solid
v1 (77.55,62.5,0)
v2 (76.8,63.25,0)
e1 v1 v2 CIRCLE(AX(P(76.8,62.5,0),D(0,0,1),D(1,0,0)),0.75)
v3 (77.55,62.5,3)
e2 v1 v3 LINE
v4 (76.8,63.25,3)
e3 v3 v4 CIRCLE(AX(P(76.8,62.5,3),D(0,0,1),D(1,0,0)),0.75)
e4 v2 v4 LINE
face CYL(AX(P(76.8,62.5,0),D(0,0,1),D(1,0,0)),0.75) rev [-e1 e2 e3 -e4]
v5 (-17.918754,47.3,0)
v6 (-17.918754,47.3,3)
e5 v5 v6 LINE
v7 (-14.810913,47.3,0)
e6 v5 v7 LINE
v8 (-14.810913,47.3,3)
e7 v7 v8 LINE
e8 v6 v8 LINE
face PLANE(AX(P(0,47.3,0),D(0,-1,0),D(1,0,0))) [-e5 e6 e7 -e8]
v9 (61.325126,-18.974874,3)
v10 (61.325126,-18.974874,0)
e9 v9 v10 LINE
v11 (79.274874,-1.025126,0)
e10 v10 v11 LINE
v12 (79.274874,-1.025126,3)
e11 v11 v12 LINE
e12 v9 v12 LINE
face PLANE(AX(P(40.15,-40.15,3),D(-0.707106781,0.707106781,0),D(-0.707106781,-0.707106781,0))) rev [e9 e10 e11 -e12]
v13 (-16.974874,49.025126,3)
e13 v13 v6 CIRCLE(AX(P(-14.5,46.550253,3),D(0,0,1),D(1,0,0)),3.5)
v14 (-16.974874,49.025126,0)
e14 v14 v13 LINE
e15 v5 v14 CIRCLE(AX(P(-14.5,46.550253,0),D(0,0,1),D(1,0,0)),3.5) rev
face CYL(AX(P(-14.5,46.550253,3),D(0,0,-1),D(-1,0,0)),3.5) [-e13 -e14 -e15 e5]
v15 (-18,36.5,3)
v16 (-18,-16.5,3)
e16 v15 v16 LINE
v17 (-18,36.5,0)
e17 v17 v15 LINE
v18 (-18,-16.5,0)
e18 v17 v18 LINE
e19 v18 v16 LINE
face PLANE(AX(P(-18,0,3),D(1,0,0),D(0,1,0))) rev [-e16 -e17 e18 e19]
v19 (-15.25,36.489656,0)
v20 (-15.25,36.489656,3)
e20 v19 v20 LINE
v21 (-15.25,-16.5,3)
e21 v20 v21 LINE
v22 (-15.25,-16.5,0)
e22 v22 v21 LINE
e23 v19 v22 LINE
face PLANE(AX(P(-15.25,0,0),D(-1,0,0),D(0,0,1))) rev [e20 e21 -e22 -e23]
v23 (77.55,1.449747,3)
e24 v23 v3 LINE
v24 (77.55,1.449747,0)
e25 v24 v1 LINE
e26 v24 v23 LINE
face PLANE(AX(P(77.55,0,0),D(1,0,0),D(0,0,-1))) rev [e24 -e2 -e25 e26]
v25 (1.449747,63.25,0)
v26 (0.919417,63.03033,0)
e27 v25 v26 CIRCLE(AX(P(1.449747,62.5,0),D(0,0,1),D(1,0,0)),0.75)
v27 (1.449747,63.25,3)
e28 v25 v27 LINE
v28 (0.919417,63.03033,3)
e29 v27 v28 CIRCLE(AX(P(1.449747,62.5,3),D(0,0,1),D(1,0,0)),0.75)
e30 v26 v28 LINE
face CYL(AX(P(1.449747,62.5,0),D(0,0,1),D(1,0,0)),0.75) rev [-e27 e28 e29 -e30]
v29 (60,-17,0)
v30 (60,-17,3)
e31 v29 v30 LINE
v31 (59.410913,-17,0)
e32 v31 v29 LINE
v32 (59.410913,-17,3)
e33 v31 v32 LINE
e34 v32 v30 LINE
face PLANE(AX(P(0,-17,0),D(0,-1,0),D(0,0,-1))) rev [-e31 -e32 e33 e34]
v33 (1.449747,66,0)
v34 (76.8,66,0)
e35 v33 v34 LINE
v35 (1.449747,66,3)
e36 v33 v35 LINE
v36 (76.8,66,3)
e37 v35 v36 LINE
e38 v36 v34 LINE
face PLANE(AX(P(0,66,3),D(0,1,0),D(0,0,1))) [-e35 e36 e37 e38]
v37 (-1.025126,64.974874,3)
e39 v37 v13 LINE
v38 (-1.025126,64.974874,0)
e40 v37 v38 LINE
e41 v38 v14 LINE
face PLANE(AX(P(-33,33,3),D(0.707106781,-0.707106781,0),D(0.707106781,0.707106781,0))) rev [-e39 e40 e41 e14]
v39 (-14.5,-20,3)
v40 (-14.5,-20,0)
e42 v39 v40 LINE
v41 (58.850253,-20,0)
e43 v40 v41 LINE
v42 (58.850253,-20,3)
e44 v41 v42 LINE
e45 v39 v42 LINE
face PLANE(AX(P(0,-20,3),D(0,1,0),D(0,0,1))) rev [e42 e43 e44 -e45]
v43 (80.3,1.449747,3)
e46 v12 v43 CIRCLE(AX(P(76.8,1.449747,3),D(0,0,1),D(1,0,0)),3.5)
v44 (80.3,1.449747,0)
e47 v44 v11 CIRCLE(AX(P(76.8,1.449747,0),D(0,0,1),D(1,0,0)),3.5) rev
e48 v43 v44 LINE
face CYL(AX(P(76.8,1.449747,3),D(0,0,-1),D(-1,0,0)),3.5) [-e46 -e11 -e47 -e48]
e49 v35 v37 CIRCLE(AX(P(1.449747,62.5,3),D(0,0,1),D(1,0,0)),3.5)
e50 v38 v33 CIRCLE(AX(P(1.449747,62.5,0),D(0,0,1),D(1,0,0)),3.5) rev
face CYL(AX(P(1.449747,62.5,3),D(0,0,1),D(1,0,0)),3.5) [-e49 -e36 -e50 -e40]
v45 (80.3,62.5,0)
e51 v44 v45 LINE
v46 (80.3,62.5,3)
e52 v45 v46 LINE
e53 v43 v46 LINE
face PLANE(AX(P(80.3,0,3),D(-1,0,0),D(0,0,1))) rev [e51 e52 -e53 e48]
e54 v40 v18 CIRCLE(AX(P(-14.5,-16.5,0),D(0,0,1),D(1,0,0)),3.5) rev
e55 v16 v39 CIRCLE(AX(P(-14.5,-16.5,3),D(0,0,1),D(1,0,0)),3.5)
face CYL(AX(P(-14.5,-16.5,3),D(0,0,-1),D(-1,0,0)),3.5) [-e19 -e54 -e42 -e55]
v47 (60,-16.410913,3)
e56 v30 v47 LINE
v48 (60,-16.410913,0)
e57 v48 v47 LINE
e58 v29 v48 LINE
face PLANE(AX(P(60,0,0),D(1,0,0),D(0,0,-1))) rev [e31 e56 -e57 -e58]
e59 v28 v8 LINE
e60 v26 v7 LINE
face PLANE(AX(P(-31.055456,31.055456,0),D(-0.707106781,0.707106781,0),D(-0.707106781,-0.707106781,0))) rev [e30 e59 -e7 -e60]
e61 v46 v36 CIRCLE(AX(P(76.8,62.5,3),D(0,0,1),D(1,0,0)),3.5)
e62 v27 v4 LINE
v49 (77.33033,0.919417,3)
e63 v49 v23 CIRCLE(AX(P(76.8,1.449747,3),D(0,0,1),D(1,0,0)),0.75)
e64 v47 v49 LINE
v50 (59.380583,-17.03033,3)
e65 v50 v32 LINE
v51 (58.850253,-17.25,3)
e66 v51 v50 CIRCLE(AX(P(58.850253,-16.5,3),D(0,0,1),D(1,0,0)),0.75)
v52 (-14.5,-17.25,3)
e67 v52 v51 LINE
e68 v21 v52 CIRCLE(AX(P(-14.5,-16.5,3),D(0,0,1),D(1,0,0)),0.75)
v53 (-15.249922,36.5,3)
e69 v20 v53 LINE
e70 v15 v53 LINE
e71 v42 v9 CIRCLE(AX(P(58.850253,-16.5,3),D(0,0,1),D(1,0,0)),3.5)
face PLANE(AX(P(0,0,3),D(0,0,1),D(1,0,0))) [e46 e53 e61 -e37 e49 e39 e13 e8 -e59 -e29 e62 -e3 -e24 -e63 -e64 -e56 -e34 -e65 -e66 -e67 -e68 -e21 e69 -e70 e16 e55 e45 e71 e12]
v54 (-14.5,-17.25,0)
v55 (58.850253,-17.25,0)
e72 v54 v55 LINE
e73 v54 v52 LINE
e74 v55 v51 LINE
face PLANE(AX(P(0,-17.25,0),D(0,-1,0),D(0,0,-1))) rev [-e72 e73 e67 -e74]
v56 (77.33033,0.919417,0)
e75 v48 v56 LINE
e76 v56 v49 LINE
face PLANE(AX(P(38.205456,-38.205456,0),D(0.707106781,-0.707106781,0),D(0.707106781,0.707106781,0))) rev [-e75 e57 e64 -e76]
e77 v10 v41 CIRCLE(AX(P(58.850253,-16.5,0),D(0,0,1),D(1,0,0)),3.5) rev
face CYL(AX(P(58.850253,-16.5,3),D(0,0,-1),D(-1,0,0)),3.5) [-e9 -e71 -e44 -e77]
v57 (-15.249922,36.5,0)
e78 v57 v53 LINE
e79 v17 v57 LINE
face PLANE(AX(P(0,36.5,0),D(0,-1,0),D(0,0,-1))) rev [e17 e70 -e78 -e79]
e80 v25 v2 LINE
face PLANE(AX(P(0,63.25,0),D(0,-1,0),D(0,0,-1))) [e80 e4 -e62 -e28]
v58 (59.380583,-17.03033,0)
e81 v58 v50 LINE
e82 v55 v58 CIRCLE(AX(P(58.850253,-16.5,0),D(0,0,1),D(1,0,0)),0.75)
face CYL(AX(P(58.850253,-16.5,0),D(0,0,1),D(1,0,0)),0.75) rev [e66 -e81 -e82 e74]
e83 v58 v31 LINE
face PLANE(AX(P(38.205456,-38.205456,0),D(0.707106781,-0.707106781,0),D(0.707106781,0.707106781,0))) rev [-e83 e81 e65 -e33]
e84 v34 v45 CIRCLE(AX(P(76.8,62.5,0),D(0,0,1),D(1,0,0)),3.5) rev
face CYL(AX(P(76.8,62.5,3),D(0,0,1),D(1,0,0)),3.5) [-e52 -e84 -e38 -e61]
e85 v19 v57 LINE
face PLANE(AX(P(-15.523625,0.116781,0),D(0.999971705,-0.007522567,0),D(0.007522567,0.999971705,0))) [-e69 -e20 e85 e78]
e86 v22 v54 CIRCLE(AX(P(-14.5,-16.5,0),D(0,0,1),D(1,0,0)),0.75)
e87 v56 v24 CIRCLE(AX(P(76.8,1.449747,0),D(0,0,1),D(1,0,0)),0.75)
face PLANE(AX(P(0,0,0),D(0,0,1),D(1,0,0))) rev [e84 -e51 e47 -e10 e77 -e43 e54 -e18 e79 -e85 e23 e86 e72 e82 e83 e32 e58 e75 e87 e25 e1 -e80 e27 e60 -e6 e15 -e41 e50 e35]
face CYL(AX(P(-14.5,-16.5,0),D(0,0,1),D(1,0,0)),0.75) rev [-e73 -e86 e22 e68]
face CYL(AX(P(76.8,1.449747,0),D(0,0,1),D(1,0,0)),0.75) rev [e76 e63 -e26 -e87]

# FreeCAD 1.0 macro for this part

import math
import FreeCAD as App
import Part
import Sketcher

V = App.Vector
Q = App.Units.Quantity


def edges_at(feature, points):
    """Names of the edges that pass closest to the given points."""
    edges = feature.Shape.Edges
    near = lambda p: min(range(len(edges)), key=lambda i: edges[i].distToShape(Part.Vertex(*p))[0])
    return sorted({f"Edge{near(p) + 1}" for p in points})

doc = App.newDocument("Part")
body = doc.addObject("PartDesign::Body", "Body")

# Sketch on XY plane
sketch1 = body.newObject("Sketcher::SketchObject", "Sketch")
sketch1.AttachmentSupport = (doc.getObject("XY_Plane"), [""])
sketch1.MapMode = "FlatFace"
sketch1.addGeometry([
    Part.LineSegment(V(-18, -20, 0), V(60, -20, 0)),  # 0
    Part.LineSegment(V(60, -20, 0), V(80, 0, 0)),  # 1
    Part.LineSegment(V(80, 0, 0), V(80, 66, 0)),  # 2
    Part.LineSegment(V(80, 66, 0), V(0, 66, 0)),  # 3
    Part.LineSegment(V(0, 66, 0), V(-18, 48, 0)),  # 4
    Part.LineSegment(V(-18, 48, 0), V(-18, -20, 0)),  # 5
], False)
sketch1.addConstraint([
    Sketcher.Constraint("Coincident", 0, 2, 1, 1),
    Sketcher.Constraint("Coincident", 1, 2, 2, 1),
    Sketcher.Constraint("Coincident", 2, 2, 3, 1),
    Sketcher.Constraint("Coincident", 3, 2, 4, 1),
    Sketcher.Constraint("Coincident", 4, 2, 5, 1),
    Sketcher.Constraint("Coincident", 5, 2, 0, 1),
    Sketcher.Constraint("Horizontal", 0),
    Sketcher.Constraint("Vertical", 2),
    Sketcher.Constraint("Horizontal", 3),
    Sketcher.Constraint("Vertical", 5),
    Sketcher.Constraint("PointOnObject", 1, 2, -1),
    Sketcher.Constraint("PointOnObject", 3, 2, -2),
    Sketcher.Constraint("Parallel", 1, 4),
    Sketcher.Constraint("DistanceY", 2, 1, 2, 2, Q("66 mm")),
    Sketcher.Constraint("DistanceY", 5, 2, 5, 1, Q("68 mm")),
    Sketcher.Constraint("Angle", 1, Q("45 deg")),
    Sketcher.Constraint("DistanceX", 0, 1, 0, 2, Q("78.3 mm")),
    Sketcher.Constraint("DistanceY", 0, 2, -1, 1, Q("20 mm")),
])
pad1 = body.newObject("PartDesign::Pad", "Pad")
pad1.Profile = sketch1
pad1.Length = 3
doc.recompute()

fillet = body.newObject("PartDesign::Fillet", "Fillet")
fillet.Base = (pad1, edges_at(pad1, [
    (60.3, -20, 1.5),
    (-18, -20, 1.5),
    (-18, 48, 1.5),
    (0, 66, 1.5),
    (80.3, 66, 1.5),
    (80.3, 0, 1.5),
]))
fillet.Radius = 3.5

# Sketch on XY plane
sketch2 = body.newObject("Sketcher::SketchObject", "Sketch001")
sketch2.AttachmentSupport = (doc.getObject("XY_Plane"), [""])
sketch2.MapMode = "FlatFace"
sketch2.AttachmentOffset = App.Placement(V(0, 0, 3), App.Rotation())
sketch2.addGeometry([
    Part.LineSegment(V(3, 56, 0), V(3, 10, 0)),
    Part.LineSegment(V(3, 10, 0), V(75, 10, 0)),
    Part.LineSegment(V(75, 10, 0), V(75, 56, 0)),
    Part.LineSegment(V(75, 56, 0), V(3, 56, 0)),
], False)
sketch2.addConstraint([
    Sketcher.Constraint("Coincident", 0, 2, 1, 1),
    Sketcher.Constraint("Coincident", 1, 2, 2, 1),
    Sketcher.Constraint("Coincident", 2, 2, 3, 1),
    Sketcher.Constraint("Coincident", 3, 2, 0, 1),
    Sketcher.Constraint("Vertical", 0),
    Sketcher.Constraint("Horizontal", 1),
    Sketcher.Constraint("Vertical", 2),
    Sketcher.Constraint("Horizontal", 3),
    Sketcher.Constraint("DistanceY", 0, 2, 0, 1, Q("45 mm")),
    Sketcher.Constraint("DistanceX", 1, 1, 1, 2, Q("72.4 mm")),
    Sketcher.Constraint("DistanceX", -1, 1, 0, 2, Q("3 mm")),
    Sketcher.Constraint("DistanceY", -1, 1, 0, 2, Q("10.5 mm")),
])
pocket1 = body.newObject("PartDesign::Pocket", "Pocket")
pocket1.Profile = sketch2
pocket1.Type = "ThroughAll"

# Sketch on XY plane
sketch3 = body.newObject("Sketcher::SketchObject", "Sketch002")
sketch3.AttachmentSupport = (doc.getObject("XY_Plane"), [""])
sketch3.MapMode = "FlatFace"
sketch3.AttachmentOffset = App.Placement(V(0, 0, 3), App.Rotation())
sketch3.addGeometry([
    Part.LineSegment(V(-3, 47.3, 0), V(-17.9, 47.3, 0)),  # 0
    Part.ArcOfCircle(Part.Circle(V(-14.5, 46.6, 0), V(0, 0, 1), 3.5), math.radians(167.63), math.radians(180)),  # 1
    Part.LineSegment(V(-18, 46.6, 0), V(-18, 36.5, 0)),  # 2
    Part.LineSegment(V(-18, 36.5, 0), V(-3, 36.5, 0)),  # 3
    Part.LineSegment(V(-3, 36.5, 0), V(-3, 47.3, 0)),  # 4
    Part.LineSegment(V(-15, 34.5, 0), V(-15, 4.5, 0)),  # 5
    Part.LineSegment(V(-15, 4.5, 0), V(0, 4.5, 0)),  # 6
    Part.LineSegment(V(0, 4.5, 0), V(0, 34.5, 0)),  # 7
    Part.LineSegment(V(0, 34.5, 0), V(-15, 34.5, 0)),  # 8
    Part.LineSegment(V(27, 1, 0), V(27, -17, 0)),  # 9
    Part.LineSegment(V(27, -17, 0), V(60, -17, 0)),  # 10
    Part.LineSegment(V(60, -17, 0), V(60, 1, 0)),  # 11
    Part.LineSegment(V(60, 1, 0), V(27, 1, 0)),  # 12
    Part.LineSegment(V(-15, 1.5, 0), V(-15, -17, 0)),  # 13
    Part.LineSegment(V(-15, -17, 0), V(24, -17, 0)),  # 14
    Part.LineSegment(V(24, -17, 0), V(24, 1.5, 0)),  # 15
    Part.LineSegment(V(24, 1.5, 0), V(-15, 1.5, 0)),  # 16
    Part.LineSegment(V(67.2, -0.3, 0), V(63, -4.6, 0)),  # 17
    Part.LineSegment(V(63, -4.6, 0), V(67.2, -8.8, 0)),  # 18
    Part.LineSegment(V(67.2, -8.8, 0), V(71.5, -4.6, 0)),  # 19
    Part.LineSegment(V(71.5, -4.6, 0), V(67.2, -0.3, 0)),  # 20
], False)
sketch3.addConstraint([
    Sketcher.Constraint("Coincident", 0, 2, 1, 1),
    Sketcher.Constraint("Tangent", 1, 2, 2, 1),
    Sketcher.Constraint("Coincident", 2, 2, 3, 1),
    Sketcher.Constraint("Coincident", 3, 2, 4, 1),
    Sketcher.Constraint("Coincident", 4, 2, 0, 1),
    Sketcher.Constraint("Coincident", 5, 2, 6, 1),
    Sketcher.Constraint("Coincident", 6, 2, 7, 1),
    Sketcher.Constraint("Coincident", 7, 2, 8, 1),
    Sketcher.Constraint("Coincident", 8, 2, 5, 1),
    Sketcher.Constraint("Coincident", 9, 2, 10, 1),
    Sketcher.Constraint("Coincident", 10, 2, 11, 1),
    Sketcher.Constraint("Coincident", 11, 2, 12, 1),
    Sketcher.Constraint("Coincident", 12, 2, 9, 1),
    Sketcher.Constraint("Coincident", 13, 2, 14, 1),
    Sketcher.Constraint("Coincident", 14, 2, 15, 1),
    Sketcher.Constraint("Coincident", 15, 2, 16, 1),
    Sketcher.Constraint("Coincident", 16, 2, 13, 1),
    Sketcher.Constraint("Coincident", 17, 2, 18, 1),
    Sketcher.Constraint("Coincident", 18, 2, 19, 1),
    Sketcher.Constraint("Coincident", 19, 2, 20, 1),
    Sketcher.Constraint("Coincident", 20, 2, 17, 1),
    Sketcher.Constraint("Horizontal", 0),
    Sketcher.Constraint("Vertical", 2),
    Sketcher.Constraint("Horizontal", 3),
    Sketcher.Constraint("Vertical", 4),
    Sketcher.Constraint("Vertical", 5),
    Sketcher.Constraint("Horizontal", 6),
    Sketcher.Constraint("Vertical", 7),
    Sketcher.Constraint("Horizontal", 8),
    Sketcher.Constraint("Vertical", 9),
    Sketcher.Constraint("Horizontal", 10),
    Sketcher.Constraint("Vertical", 11),
    Sketcher.Constraint("Horizontal", 12),
    Sketcher.Constraint("Vertical", 13),
    Sketcher.Constraint("Horizontal", 14),
    Sketcher.Constraint("Vertical", 15),
    Sketcher.Constraint("Horizontal", 16),
    Sketcher.Constraint("PointOnObject", 6, 2, -2),
    Sketcher.Constraint("Perpendicular", 17, 18),
    Sketcher.Constraint("Perpendicular", 18, 19),
    Sketcher.Constraint("Perpendicular", 19, 20),
    Sketcher.Constraint("Horizontal", 10, 2, 13, 2),
    Sketcher.Constraint("Horizontal", 17, 2, 19, 2),
    Sketcher.Constraint("Vertical", 8, 2, 13, 2),
    Sketcher.Constraint("Vertical", 18, 2, 20, 2),
    Sketcher.Constraint("Equal", 3, 6),
    Sketcher.Constraint("Radius", 1, Q("3.5 mm")),
    Sketcher.Constraint("DistanceX", 3, 1, 3, 2, Q("15 mm")),
    Sketcher.Constraint("DistanceX", 10, 1, 10, 2, Q("33 mm")),
    Sketcher.Constraint("DistanceX", 14, 1, 14, 2, Q("39 mm")),
    Sketcher.Constraint("DistanceY", 5, 2, 5, 1, Q("30 mm")),
    Sketcher.Constraint("DistanceY", 9, 2, 9, 1, Q("18 mm")),
    Sketcher.Constraint("Distance", 17, Q("6 mm")),
    Sketcher.Constraint("DistanceY", 4, 1, 4, 2, Q("10.8 mm")),
    Sketcher.Constraint("DistanceY", 13, 2, 13, 1, Q("18.5 mm")),
    Sketcher.Constraint("DistanceX", 1, 2, -1, 1, Q("18 mm")),
    Sketcher.Constraint("DistanceX", -1, 1, 9, 2, Q("27 mm")),
    Sketcher.Constraint("DistanceY", 9, 2, -1, 1, Q("17 mm")),
    Sketcher.Constraint("DistanceX", -1, 1, 17, 2, Q("63 mm")),
    Sketcher.Constraint("DistanceY", 5, 2, 2, 2, Q("32 mm")),
    Sketcher.Constraint("DistanceY", 15, 2, 6, 2, Q("3 mm")),
    Sketcher.Constraint("DistanceX", 0, 2, 0, 1, Q("14.918754 mm")),
    Sketcher.Constraint("DistanceY", 18, 2, -1, 1, Q("8.814719 mm")),
])
pocket2 = body.newObject("PartDesign::Pocket", "Pocket001")
pocket2.Profile = sketch3
pocket2.Type = "ThroughAll"

# Sketch on XY plane
sketch4 = body.newObject("Sketcher::SketchObject", "Sketch003")
sketch4.AttachmentSupport = (doc.getObject("XY_Plane"), [""])
sketch4.MapMode = "FlatFace"
sketch4.AttachmentOffset = App.Placement(V(0, 0, 3), App.Rotation())
sketch4.addGeometry([
    Part.LineSegment(V(0.919, 63.03, 0), V(-14.811, 47.3, 0)),  # 0
    Part.LineSegment(V(-14.811, 47.3, 0), V(-3, 47.3, 0)),  # 1
    Part.LineSegment(V(-3, 47.3, 0), V(-3, 36.5, 0)),  # 2
    Part.LineSegment(V(-3, 36.5, 0), V(-15.25, 36.5, 0)),  # 3
    Part.LineSegment(V(-15.25, 36.5, 0), V(-15.25, 36.49, 0)),  # 4
    Part.LineSegment(V(-15.25, 36.49, 0), V(-15.25, -16.5, 0)),  # 5
    Part.ArcOfCircle(Part.Circle(V(-14.5, -16.5, 0), V(0, 0, 1), 0.75), math.radians(180), math.radians(270)),  # 6
    Part.LineSegment(V(-14.5, -17.25, 0), V(58.85, -17.25, 0)),  # 7
    Part.ArcOfCircle(Part.Circle(V(58.85, -16.5, 0), V(0, 0, 1), 0.75), math.radians(-90), math.radians(-45)),  # 8
    Part.LineSegment(V(59.381, -17.03, 0), V(59.411, -17, 0)),  # 9
    Part.LineSegment(V(59.411, -17, 0), V(27, -17, 0)),  # 10
    Part.LineSegment(V(27, -17, 0), V(27, 1, 0)),  # 11
    Part.LineSegment(V(27, 1, 0), V(60, 1, 0)),  # 12
    Part.LineSegment(V(60, 1, 0), V(60, -16.411, 0)),  # 13
    Part.LineSegment(V(60, -16.411, 0), V(77.33, 0.919, 0)),  # 14
    Part.ArcOfCircle(Part.Circle(V(76.8, 1.45, 0), V(0, 0, 1), 0.75), math.radians(-45), math.radians(0)),  # 15
    Part.LineSegment(V(77.55, 1.45, 0), V(77.55, 62.5, 0)),  # 16
    Part.ArcOfCircle(Part.Circle(V(76.8, 62.5, 0), V(0, 0, 1), 0.75), math.radians(0), math.radians(90)),  # 17
    Part.LineSegment(V(76.8, 63.25, 0), V(1.45, 63.25, 0)),  # 18
    Part.ArcOfCircle(Part.Circle(V(1.45, 62.5, 0), V(0, 0, 1), 0.75), math.radians(90), math.radians(135)),  # 19
    Part.LineSegment(V(24, -17, 0), V(-15, -17, 0)),  # 20
    Part.LineSegment(V(-15, -17, 0), V(-15, 1.5, 0)),  # 21
    Part.LineSegment(V(-15, 1.5, 0), V(24, 1.5, 0)),  # 22
    Part.LineSegment(V(24, 1.5, 0), V(24, -17, 0)),  # 23
    Part.LineSegment(V(71.485, -4.572, 0), V(67.243, -8.815, 0)),  # 24
    Part.LineSegment(V(67.243, -8.815, 0), V(63, -4.572, 0)),  # 25
    Part.LineSegment(V(63, -4.572, 0), V(67.243, -0.329, 0)),  # 26
    Part.LineSegment(V(67.243, -0.329, 0), V(71.485, -4.572, 0)),  # 27
    Part.LineSegment(V(0, 4.5, 0), V(-15, 4.5, 0)),  # 28
    Part.LineSegment(V(-15, 4.5, 0), V(-15, 34.5, 0)),  # 29
    Part.LineSegment(V(-15, 34.5, 0), V(0, 34.5, 0)),  # 30
    Part.LineSegment(V(0, 34.5, 0), V(0, 4.5, 0)),  # 31
    Part.LineSegment(V(75.4, 10.5, 0), V(3, 10.5, 0)),  # 32
    Part.LineSegment(V(3, 10.5, 0), V(3, 55.5, 0)),  # 33
    Part.LineSegment(V(3, 55.5, 0), V(75.4, 55.5, 0)),  # 34
    Part.LineSegment(V(75.4, 55.5, 0), V(75.4, 10.5, 0)),  # 35
], False)
sketch4.addConstraint([
    Sketcher.Constraint("Coincident", 0, 2, 1, 1),
    Sketcher.Constraint("Coincident", 1, 2, 2, 1),
    Sketcher.Constraint("Coincident", 2, 2, 3, 1),
    Sketcher.Constraint("Coincident", 3, 2, 4, 1),
    Sketcher.Constraint("Coincident", 4, 2, 5, 1),
    Sketcher.Constraint("Tangent", 5, 2, 6, 1),
    Sketcher.Constraint("Tangent", 6, 2, 7, 1),
    Sketcher.Constraint("Tangent", 7, 2, 8, 1),
    Sketcher.Constraint("Tangent", 8, 2, 9, 1),
    Sketcher.Constraint("Coincident", 9, 2, 10, 1),
    Sketcher.Constraint("Coincident", 10, 2, 11, 1),
    Sketcher.Constraint("Coincident", 11, 2, 12, 1),
    Sketcher.Constraint("Coincident", 12, 2, 13, 1),
    Sketcher.Constraint("Coincident", 13, 2, 14, 1),
    Sketcher.Constraint("Tangent", 14, 2, 15, 1),
    Sketcher.Constraint("Tangent", 15, 2, 16, 1),
    Sketcher.Constraint("Tangent", 16, 2, 17, 1),
    Sketcher.Constraint("Tangent", 17, 2, 18, 1),
    Sketcher.Constraint("Tangent", 18, 2, 19, 1),
    Sketcher.Constraint("Tangent", 19, 2, 0, 1),
    Sketcher.Constraint("Coincident", 20, 2, 21, 1),
    Sketcher.Constraint("Coincident", 21, 2, 22, 1),
    Sketcher.Constraint("Coincident", 22, 2, 23, 1),
    Sketcher.Constraint("Coincident", 23, 2, 20, 1),
    Sketcher.Constraint("Coincident", 24, 2, 25, 1),
    Sketcher.Constraint("Coincident", 25, 2, 26, 1),
    Sketcher.Constraint("Coincident", 26, 2, 27, 1),
    Sketcher.Constraint("Coincident", 27, 2, 24, 1),
    Sketcher.Constraint("Coincident", 28, 2, 29, 1),
    Sketcher.Constraint("Coincident", 29, 2, 30, 1),
    Sketcher.Constraint("Coincident", 30, 2, 31, 1),
    Sketcher.Constraint("Coincident", 31, 2, 28, 1),
    Sketcher.Constraint("Coincident", 32, 2, 33, 1),
    Sketcher.Constraint("Coincident", 33, 2, 34, 1),
    Sketcher.Constraint("Coincident", 34, 2, 35, 1),
    Sketcher.Constraint("Coincident", 35, 2, 32, 1),
    Sketcher.Constraint("Horizontal", 1),
    Sketcher.Constraint("Vertical", 2),
    Sketcher.Constraint("Horizontal", 3),
    Sketcher.Constraint("Vertical", 5),
    Sketcher.Constraint("Horizontal", 7),
    Sketcher.Constraint("Horizontal", 10),
    Sketcher.Constraint("Vertical", 11),
    Sketcher.Constraint("Horizontal", 12),
    Sketcher.Constraint("Vertical", 13),
    Sketcher.Constraint("Vertical", 16),
    Sketcher.Constraint("Horizontal", 18),
    Sketcher.Constraint("Horizontal", 20),
    Sketcher.Constraint("Vertical", 21),
    Sketcher.Constraint("Horizontal", 22),
    Sketcher.Constraint("Vertical", 23),
    Sketcher.Constraint("Horizontal", 28),
    Sketcher.Constraint("Vertical", 29),
    Sketcher.Constraint("Horizontal", 30),
    Sketcher.Constraint("Vertical", 31),
    Sketcher.Constraint("Horizontal", 32),
    Sketcher.Constraint("Vertical", 33),
    Sketcher.Constraint("Horizontal", 34),
    Sketcher.Constraint("Vertical", 35),
    Sketcher.Constraint("Equal", 6, 8),
    Sketcher.Constraint("Equal", 8, 15),
    Sketcher.Constraint("Equal", 15, 17),
    Sketcher.Constraint("Equal", 17, 19),
    Sketcher.Constraint("PointOnObject", 30, 2, -2),
    Sketcher.Constraint("Parallel", 0, 9),
    Sketcher.Constraint("Parallel", 0, 14),
    Sketcher.Constraint("Parallel", 14, 24),
    Sketcher.Constraint("Perpendicular", 24, 25),
    Sketcher.Constraint("Perpendicular", 25, 26),
    Sketcher.Constraint("Perpendicular", 26, 27),
    Sketcher.Constraint("Horizontal", 10, 2, 20, 2),
    Sketcher.Constraint("Horizontal", 25, 2, 27, 2),
    Sketcher.Constraint("Vertical", 24, 2, 26, 2),
    Sketcher.Constraint("Vertical", 21, 2, 28, 2),
    Sketcher.Constraint("DistanceX", 12, 1, 12, 2, Q("33 mm")),
    Sketcher.Constraint("DistanceX", 20, 2, 20, 1, Q("39 mm")),
    Sketcher.Constraint("DistanceX", 28, 2, 28, 1, Q("15 mm")),
    Sketcher.Constraint("DistanceY", 11, 1, 11, 2, Q("18 mm")),
    Sketcher.Constraint("DistanceY", 29, 1, 29, 2, Q("30 mm")),
    Sketcher.Constraint("DistanceY", 33, 1, 33, 2, Q("45 mm")),
    Sketcher.Constraint("Radius", 6, Q("0.75 mm")),
    Sketcher.Constraint("Distance", 24, Q("6 mm")),
    Sketcher.Constraint("DistanceX", 32, 2, 32, 1, Q("72.4 mm")),
    Sketcher.Constraint("DistanceY", 2, 2, 2, 1, Q("10.8 mm")),
    Sketcher.Constraint("DistanceY", 21, 1, 21, 2, Q("18.5 mm")),
    Sketcher.Constraint("DistanceX", 1, 2, -1, 1, Q("3 mm")),
    Sketcher.Constraint("DistanceY", 9, 2, -1, 1, Q("17 mm")),
    Sketcher.Constraint("DistanceX", -1, 1, 10, 2, Q("27 mm")),
    Sketcher.Constraint("DistanceX", -1, 1, 25, 2, Q("63 mm")),
    Sketcher.Constraint("DistanceX", -1, 1, 32, 2, Q("3 mm")),
    Sketcher.Constraint("DistanceY", 8, 3, 17, 3, Q("79 mm")),
    Sketcher.Constraint("DistanceY", 2, 2, 19, 3, Q("26 mm")),
    Sketcher.Constraint("DistanceY", 5, 2, 21, 2, Q("18 mm")),
    Sketcher.Constraint("DistanceY", 21, 2, 28, 2, Q("3 mm")),
    Sketcher.Constraint("DistanceY", 31, 2, 32, 2, Q("6 mm")),
    Sketcher.Constraint("DistanceX", 6, 3, -1, 1, Q("14.5 mm")),
    Sketcher.Constraint("DistanceX", -1, 1, 15, 3, Q("76.8 mm")),
    Sketcher.Constraint("DistanceX", 1, 1, 1, 2, Q("11.810913 mm")),
    Sketcher.Constraint("DistanceX", 3, 2, 3, 1, Q("12.249922 mm")),
    Sketcher.Constraint("DistanceX", 7, 1, 7, 2, Q("73.350253 mm")),
    Sketcher.Constraint("DistanceY", 5, 2, 5, 1, Q("52.989656 mm")),
    Sketcher.Constraint("DistanceY", 13, 2, 13, 1, Q("17.410913 mm")),
    Sketcher.Constraint("DistanceY", 24, 2, -1, 1, Q("8.814719 mm")),
])
pocket3 = body.newObject("PartDesign::Pocket", "Pocket002")
pocket3.Profile = sketch4
pocket3.Type = "ThroughAll"

doc.recompute()
